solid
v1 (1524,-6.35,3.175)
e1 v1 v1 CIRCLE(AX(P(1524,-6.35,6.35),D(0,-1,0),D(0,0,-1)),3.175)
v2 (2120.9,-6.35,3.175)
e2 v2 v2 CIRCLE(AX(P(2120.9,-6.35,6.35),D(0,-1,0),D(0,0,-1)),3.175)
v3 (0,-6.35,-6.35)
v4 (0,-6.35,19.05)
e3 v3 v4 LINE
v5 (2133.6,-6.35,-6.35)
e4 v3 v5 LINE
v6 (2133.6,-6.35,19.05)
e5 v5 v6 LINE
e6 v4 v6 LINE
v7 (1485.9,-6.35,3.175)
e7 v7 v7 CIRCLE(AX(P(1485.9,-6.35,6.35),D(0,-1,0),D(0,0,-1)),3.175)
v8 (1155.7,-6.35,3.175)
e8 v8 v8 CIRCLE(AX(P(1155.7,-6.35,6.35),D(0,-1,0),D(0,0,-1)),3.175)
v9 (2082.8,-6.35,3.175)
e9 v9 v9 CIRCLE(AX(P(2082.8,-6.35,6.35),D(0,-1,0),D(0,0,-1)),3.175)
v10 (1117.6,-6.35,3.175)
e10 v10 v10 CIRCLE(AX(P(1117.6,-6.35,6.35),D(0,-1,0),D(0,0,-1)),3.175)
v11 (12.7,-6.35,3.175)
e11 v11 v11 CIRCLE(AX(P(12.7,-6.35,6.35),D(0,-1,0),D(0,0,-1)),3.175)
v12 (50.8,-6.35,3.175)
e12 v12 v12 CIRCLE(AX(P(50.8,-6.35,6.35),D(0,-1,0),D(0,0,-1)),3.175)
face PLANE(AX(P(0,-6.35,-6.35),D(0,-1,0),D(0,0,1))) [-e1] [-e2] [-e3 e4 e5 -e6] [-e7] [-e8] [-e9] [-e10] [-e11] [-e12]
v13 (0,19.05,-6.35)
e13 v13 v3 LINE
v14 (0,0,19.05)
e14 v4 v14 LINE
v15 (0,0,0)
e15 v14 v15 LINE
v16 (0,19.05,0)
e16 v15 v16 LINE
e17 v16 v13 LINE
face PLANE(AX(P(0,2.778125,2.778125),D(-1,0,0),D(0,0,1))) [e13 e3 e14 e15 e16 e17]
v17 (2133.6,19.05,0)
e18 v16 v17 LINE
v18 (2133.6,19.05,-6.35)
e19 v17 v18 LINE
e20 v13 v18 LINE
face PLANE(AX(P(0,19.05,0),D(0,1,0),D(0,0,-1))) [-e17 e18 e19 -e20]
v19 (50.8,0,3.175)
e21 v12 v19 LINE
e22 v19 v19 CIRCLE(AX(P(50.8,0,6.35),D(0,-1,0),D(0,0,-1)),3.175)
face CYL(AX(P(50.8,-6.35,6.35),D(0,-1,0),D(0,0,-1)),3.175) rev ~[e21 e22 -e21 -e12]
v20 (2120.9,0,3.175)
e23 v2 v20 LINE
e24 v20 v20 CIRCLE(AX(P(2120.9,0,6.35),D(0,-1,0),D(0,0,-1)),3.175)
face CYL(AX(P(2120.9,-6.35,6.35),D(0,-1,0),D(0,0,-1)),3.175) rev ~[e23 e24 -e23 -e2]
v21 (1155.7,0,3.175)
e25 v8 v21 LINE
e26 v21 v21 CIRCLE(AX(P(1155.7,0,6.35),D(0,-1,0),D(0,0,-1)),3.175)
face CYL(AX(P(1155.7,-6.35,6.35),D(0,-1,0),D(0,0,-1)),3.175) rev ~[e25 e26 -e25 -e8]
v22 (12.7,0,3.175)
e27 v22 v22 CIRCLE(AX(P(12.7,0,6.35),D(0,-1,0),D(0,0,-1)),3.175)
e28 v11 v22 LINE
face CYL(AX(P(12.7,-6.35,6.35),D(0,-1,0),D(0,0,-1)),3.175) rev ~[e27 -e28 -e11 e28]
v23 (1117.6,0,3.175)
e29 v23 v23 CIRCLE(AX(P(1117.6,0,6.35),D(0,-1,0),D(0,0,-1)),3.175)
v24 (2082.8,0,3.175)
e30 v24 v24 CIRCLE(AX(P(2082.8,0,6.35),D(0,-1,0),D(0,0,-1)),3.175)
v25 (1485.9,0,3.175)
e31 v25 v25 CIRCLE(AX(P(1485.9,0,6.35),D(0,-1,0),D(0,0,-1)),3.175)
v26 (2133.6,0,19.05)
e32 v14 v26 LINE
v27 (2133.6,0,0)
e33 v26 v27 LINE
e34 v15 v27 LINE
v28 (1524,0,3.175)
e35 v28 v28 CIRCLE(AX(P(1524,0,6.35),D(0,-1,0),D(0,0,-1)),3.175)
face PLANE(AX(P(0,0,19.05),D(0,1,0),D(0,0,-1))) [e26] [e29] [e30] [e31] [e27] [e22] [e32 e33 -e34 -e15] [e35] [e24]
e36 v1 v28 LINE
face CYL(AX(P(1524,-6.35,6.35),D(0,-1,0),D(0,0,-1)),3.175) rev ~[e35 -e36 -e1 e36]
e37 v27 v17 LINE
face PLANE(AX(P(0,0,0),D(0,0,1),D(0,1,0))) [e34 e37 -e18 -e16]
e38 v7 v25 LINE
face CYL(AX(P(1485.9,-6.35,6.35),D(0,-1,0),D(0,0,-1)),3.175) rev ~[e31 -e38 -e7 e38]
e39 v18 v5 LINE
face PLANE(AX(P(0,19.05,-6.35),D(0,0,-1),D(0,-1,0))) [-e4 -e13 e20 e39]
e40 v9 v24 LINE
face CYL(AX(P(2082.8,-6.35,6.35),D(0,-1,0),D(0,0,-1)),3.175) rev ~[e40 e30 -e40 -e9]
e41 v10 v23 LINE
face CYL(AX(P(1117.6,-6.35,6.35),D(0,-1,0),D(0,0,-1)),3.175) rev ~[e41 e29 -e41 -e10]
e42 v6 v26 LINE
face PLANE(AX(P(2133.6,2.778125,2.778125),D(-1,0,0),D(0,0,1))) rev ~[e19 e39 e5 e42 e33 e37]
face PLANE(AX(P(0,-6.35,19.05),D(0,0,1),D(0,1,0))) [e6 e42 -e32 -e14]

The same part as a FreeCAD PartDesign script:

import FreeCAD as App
import Part
import Sketcher
Q = App.Units.Quantity

doc = App.newDocument("Part")
params = doc.addObject("Spreadsheet::Sheet", "Params")
for row, (alias, value) in enumerate([
    ("sketch1_width", "1 in"),
    ("sketch1_width2", "0.75 in"),
    ("pad1_length", "84 in"),
    ("sketch2_diameter", "0.25 in"),
    ("pocket1_length", "36 in"),
], start=1):
    params.set(f"A{row}", alias)
    params.set(f"B{row}", "=" + value)
    params.setAlias(f"B{row}", alias)

body = doc.addObject("PartDesign::Body", "Body")

# Sketch on YZ plane
sketch1 = body.newObject("Sketcher::SketchObject", "Sketch")
sketch1.AttachmentSupport = (doc.getObject("YZ_Plane"), [""])
sketch1.MapMode = "FlatFace"
sketch1.addGeometry(Part.LineSegment(App.Vector(19.05, 0, 0), App.Vector(0, 0, 0)), False)
sketch1.addGeometry(Part.LineSegment(App.Vector(0, 0, 0), App.Vector(0, 19.05, 0)), False)
sketch1.addGeometry(Part.LineSegment(App.Vector(0, 19.05, 0), App.Vector(-6.35, 19.05, 0)), False)
sketch1.addGeometry(Part.LineSegment(App.Vector(-6.35, 19.05, 0), App.Vector(-6.35, -6.35, 0)), False)
sketch1.addGeometry(Part.LineSegment(App.Vector(-6.35, -6.35, 0), App.Vector(19.05, -6.35, 0)), False)
sketch1.addGeometry(Part.LineSegment(App.Vector(19.05, -6.35, 0), App.Vector(19.05, 0, 0)), False)
sketch1.addConstraint(Sketcher.Constraint("Coincident", 0, 2, 1, 1))
sketch1.addConstraint(Sketcher.Constraint("Coincident", 1, 2, 2, 1))
sketch1.addConstraint(Sketcher.Constraint("Coincident", 2, 2, 3, 1))
sketch1.addConstraint(Sketcher.Constraint("Coincident", 3, 2, 4, 1))
sketch1.addConstraint(Sketcher.Constraint("Coincident", 4, 2, 5, 1))
sketch1.addConstraint(Sketcher.Constraint("Coincident", 5, 2, 0, 1))
sketch1.addConstraint(Sketcher.Constraint("Horizontal", 0))
sketch1.addConstraint(Sketcher.Constraint("Vertical", 1))
sketch1.addConstraint(Sketcher.Constraint("Horizontal", 2))
sketch1.addConstraint(Sketcher.Constraint("Vertical", 3))
sketch1.addConstraint(Sketcher.Constraint("Horizontal", 4))
sketch1.addConstraint(Sketcher.Constraint("Vertical", 5))
sketch1.addConstraint(Sketcher.Constraint("Coincident", 0, 2, -1, 1))
sketch1.addConstraint(Sketcher.Constraint("Equal", 0, 1))
sketch1.addConstraint(Sketcher.Constraint("Equal", 4, 3))
sketch1.addConstraint(Sketcher.Constraint("DistanceX", 4, 1, 4, 2, Q("1 in")))
sketch1.addConstraint(Sketcher.Constraint("DistanceX", 0, 2, 0, 1, Q("0.75 in")))
sketch1.setExpression("Constraints[15]", "Params.sketch1_width")
sketch1.setExpression("Constraints[16]", "Params.sketch1_width2")
pad1 = body.newObject("PartDesign::Pad", "Pad")
pad1.Profile = sketch1
pad1.setExpression("Length", "Params.pad1_length")

# Sketch on XZ plane
sketch2 = body.newObject("Sketcher::SketchObject", "Sketch001")
sketch2.AttachmentSupport = (doc.getObject("XZ_Plane"), [""])
sketch2.MapMode = "FlatFace"
sketch2.AttachmentOffset = App.Placement(App.Vector(0, 0, 0.25 * 25.4), App.Rotation())
sketch2.addGeometry(Part.Circle(App.Vector(12.7, 6.35, 0), App.Vector(0, 0, 1), 3.175), False)
sketch2.addGeometry(Part.Circle(App.Vector(50.8, 6.35, 0), App.Vector(0, 0, 1), 3.175), False)
sketch2.addGeometry(Part.Circle(App.Vector(1117.6, 6.35, 0), App.Vector(0, 0, 1), 3.175), False)
sketch2.addGeometry(Part.Circle(App.Vector(1155.7, 6.35, 0), App.Vector(0, 0, 1), 3.175), False)
sketch2.addGeometry(Part.Circle(App.Vector(1485.9, 6.35, 0), App.Vector(0, 0, 1), 3.175), False)
sketch2.addGeometry(Part.Circle(App.Vector(1524, 6.35, 0), App.Vector(0, 0, 1), 3.175), False)
sketch2.addGeometry(Part.Circle(App.Vector(2082.8, 6.35, 0), App.Vector(0, 0, 1), 3.175), False)
sketch2.addGeometry(Part.Circle(App.Vector(2120.9, 6.35, 0), App.Vector(0, 0, 1), 3.175), False)
sketch2.addConstraint(Sketcher.Constraint("Equal", 0, 1))
sketch2.addConstraint(Sketcher.Constraint("Equal", 1, 2))
sketch2.addConstraint(Sketcher.Constraint("Equal", 2, 3))
sketch2.addConstraint(Sketcher.Constraint("Equal", 3, 4))
sketch2.addConstraint(Sketcher.Constraint("Equal", 4, 5))
sketch2.addConstraint(Sketcher.Constraint("Equal", 5, 6))
sketch2.addConstraint(Sketcher.Constraint("Equal", 6, 7))
sketch2.addConstraint(Sketcher.Constraint("Horizontal", 0, 3, 1, 3))
sketch2.addConstraint(Sketcher.Constraint("Horizontal", 1, 3, 2, 3))
sketch2.addConstraint(Sketcher.Constraint("Horizontal", 2, 3, 3, 3))
sketch2.addConstraint(Sketcher.Constraint("Horizontal", 3, 3, 4, 3))
sketch2.addConstraint(Sketcher.Constraint("Horizontal", 4, 3, 5, 3))
sketch2.addConstraint(Sketcher.Constraint("Horizontal", 5, 3, 6, 3))
sketch2.addConstraint(Sketcher.Constraint("Horizontal", 6, 3, 7, 3))
sketch2.addConstraint(Sketcher.Constraint("Diameter", 0, Q("0.25 in")))
sketch2.addConstraint(Sketcher.Constraint("DistanceX", -1, 1, 1, 3, Q("2 in")))
sketch2.addConstraint(Sketcher.Constraint("DistanceX", -1, 1, 2, 3, Q("44 in")))
sketch2.addConstraint(Sketcher.Constraint("DistanceX", -1, 1, 5, 3, Q("60 in")))
sketch2.addConstraint(Sketcher.Constraint("DistanceX", -1, 1, 6, 3, Q("82 in")))
sketch2.addConstraint(Sketcher.Constraint("DistanceX", 0, 3, 3, 3, Q("45 in")))
sketch2.addConstraint(Sketcher.Constraint("DistanceX", 3, 3, 4, 3, Q("13 in")))
sketch2.addConstraint(Sketcher.Constraint("DistanceX", 4, 3, 7, 3, Q("25 in")))
sketch2.addConstraint(Sketcher.Constraint("DistanceX", -1, 1, 0, 3, Q("0.5 in")))
sketch2.addConstraint(Sketcher.Constraint("DistanceY", -1, 1, 0, 3, Q("0.25 in")))
sketch2.setExpression("Constraints[14]", "Params.sketch2_diameter")
pocket1 = body.newObject("PartDesign::Pocket", "Pocket")
pocket1.Profile = sketch2
pocket1.setExpression("Length", "Params.pocket1_length")

doc.recompute()
